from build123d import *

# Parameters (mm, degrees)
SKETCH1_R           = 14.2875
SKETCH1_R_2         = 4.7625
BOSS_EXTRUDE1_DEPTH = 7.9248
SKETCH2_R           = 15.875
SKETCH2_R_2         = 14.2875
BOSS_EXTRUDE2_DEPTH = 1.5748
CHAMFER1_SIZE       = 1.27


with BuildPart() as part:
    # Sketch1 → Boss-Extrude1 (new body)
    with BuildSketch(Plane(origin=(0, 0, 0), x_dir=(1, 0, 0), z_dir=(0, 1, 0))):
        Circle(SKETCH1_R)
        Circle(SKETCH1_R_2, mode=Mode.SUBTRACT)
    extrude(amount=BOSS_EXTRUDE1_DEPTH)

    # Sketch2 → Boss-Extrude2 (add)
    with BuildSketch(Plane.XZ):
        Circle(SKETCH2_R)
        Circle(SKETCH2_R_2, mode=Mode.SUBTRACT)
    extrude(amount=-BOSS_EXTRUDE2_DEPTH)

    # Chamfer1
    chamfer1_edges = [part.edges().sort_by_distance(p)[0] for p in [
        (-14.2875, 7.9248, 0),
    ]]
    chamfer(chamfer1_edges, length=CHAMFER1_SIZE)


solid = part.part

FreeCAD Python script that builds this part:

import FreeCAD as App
import Part
import Sketcher
Q = App.Units.Quantity


def edges_at(feature, points):
    """Names of the edges that pass closest to the given points."""
    edges = feature.Shape.Edges
    near = lambda p: min(range(len(edges)), key=lambda i: edges[i].distToShape(Part.Vertex(*p))[0])
    return sorted({f"Edge{near(p) + 1}" for p in points})

doc = App.newDocument("Part")
params = doc.addObject("Spreadsheet::Sheet", "Params")
for row, (alias, value) in enumerate([
    ("sketch1_diameter", "1.125 in"),
    ("sketch1_diameter2", "0.375 in"),
    ("pad1_length", "0.312 in"),
    ("sketch2_diameter", "1.25 in"),
    ("sketch2_diameter2", "1.125 in"),
    ("pad2_length", "0.062 in"),
    ("chamfer_size", "0.05 in"),
], start=1):
    params.set(f"A{row}", alias)
    params.set(f"B{row}", "=" + value)
    params.setAlias(f"B{row}", alias)

body = doc.addObject("PartDesign::Body", "Body")

# Sketch on XZ plane
sketch1 = body.newObject("Sketcher::SketchObject", "Sketch")
sketch1.AttachmentSupport = (doc.getObject("XZ_Plane"), [""])
sketch1.MapMode = "FlatFace"
sketch1.addGeometry(Part.Circle(App.Vector(0, 0, 0), App.Vector(0, 0, 1), 14.3), False)
sketch1.addGeometry(Part.Circle(App.Vector(0, 0, 0), App.Vector(0, 0, 1), 4.8), False)
sketch1.addConstraint(Sketcher.Constraint("Coincident", 0, 3, -1, 1))
sketch1.addConstraint(Sketcher.Constraint("Coincident", 1, 3, -1, 1))
sketch1.addConstraint(Sketcher.Constraint("Diameter", 0, Q("1.125 in")))
sketch1.addConstraint(Sketcher.Constraint("Diameter", 1, Q("0.375 in")))
sketch1.setExpression("Constraints[2]", "Params.sketch1_diameter")
sketch1.setExpression("Constraints[3]", "Params.sketch1_diameter2")
pad1 = body.newObject("PartDesign::Pad", "Pad")
pad1.Profile = sketch1
pad1.setExpression("Length", "Params.pad1_length")
pad1.Reversed = True

# Sketch on XZ plane
sketch2 = body.newObject("Sketcher::SketchObject", "Sketch001")
sketch2.AttachmentSupport = (doc.getObject("XZ_Plane"), [""])
sketch2.MapMode = "FlatFace"
sketch2.addGeometry(Part.Circle(App.Vector(0, 0, 0), App.Vector(0, 0, 1), 16), False)
sketch2.addGeometry(Part.Circle(App.Vector(0, 0, 0), App.Vector(0, 0, 1), 14), False)
sketch2.addConstraint(Sketcher.Constraint("Coincident", 0, 3, -1, 1))
sketch2.addConstraint(Sketcher.Constraint("Coincident", 1, 3, -1, 1))
sketch2.addConstraint(Sketcher.Constraint("Diameter", 0, Q("1.25 in")))
sketch2.addConstraint(Sketcher.Constraint("Diameter", 1, Q("1.125 in")))
sketch2.setExpression("Constraints[2]", "Params.sketch2_diameter")
sketch2.setExpression("Constraints[3]", "Params.sketch2_diameter2")
pad2 = body.newObject("PartDesign::Pad", "Pad001")
pad2.Profile = sketch2
pad2.setExpression("Length", "Params.pad2_length")
pad2.Reversed = True
doc.recompute()

chamfer = body.newObject("PartDesign::Chamfer", "Chamfer")
chamfer.Base = (pad2, edges_at(pad2, [(-14.287, 7.925, 0)]))
chamfer.setExpression("Size", "Params.chamfer_size")

doc.recompute()
